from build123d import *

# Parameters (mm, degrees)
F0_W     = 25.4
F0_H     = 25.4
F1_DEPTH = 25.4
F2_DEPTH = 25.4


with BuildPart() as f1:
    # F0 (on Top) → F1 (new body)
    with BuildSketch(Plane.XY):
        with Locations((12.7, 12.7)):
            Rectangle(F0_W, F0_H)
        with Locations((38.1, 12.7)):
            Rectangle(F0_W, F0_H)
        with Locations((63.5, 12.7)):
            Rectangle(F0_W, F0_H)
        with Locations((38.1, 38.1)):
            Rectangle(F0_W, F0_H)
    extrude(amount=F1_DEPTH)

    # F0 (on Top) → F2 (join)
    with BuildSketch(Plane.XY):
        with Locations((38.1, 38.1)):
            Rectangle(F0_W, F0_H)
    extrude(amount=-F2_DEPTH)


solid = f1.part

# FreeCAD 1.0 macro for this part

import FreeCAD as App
import Part
import Sketcher
Q = App.Units.Quantity


def add_polygon(sketch, points):
    """Adds a closed chain of lines whose ends are joined by coincident constraints."""
    first, n = sketch.GeometryCount, len(points)
    for a, b in zip(points, points[1:] + points[:1]):
        sketch.addGeometry(Part.LineSegment(App.Vector(*a, 0), App.Vector(*b, 0)), False)
    for i in range(n):
        sketch.addConstraint(Sketcher.Constraint("Coincident", first + i, 2, first + (i + 1) % n, 1))

doc = App.newDocument("Part")
body = doc.addObject("PartDesign::Body", "Body")

# Sketch on XY plane
sketch1 = body.newObject("Sketcher::SketchObject", "Sketch")
sketch1.AttachmentSupport = (doc.getObject("XY_Plane"), [""])
sketch1.MapMode = "FlatFace"
add_polygon(sketch1, [(0, 25), (0, 0), (76, 0), (76, 25), (51, 25), (51, 51), (25, 51), (25, 25)])  # lines 0-7
sketch1.addConstraint(Sketcher.Constraint("Vertical", 0))
sketch1.addConstraint(Sketcher.Constraint("Horizontal", 1))
sketch1.addConstraint(Sketcher.Constraint("Vertical", 2))
sketch1.addConstraint(Sketcher.Constraint("Horizontal", 3))
sketch1.addConstraint(Sketcher.Constraint("Vertical", 4))
sketch1.addConstraint(Sketcher.Constraint("Horizontal", 5))
sketch1.addConstraint(Sketcher.Constraint("Vertical", 6))
sketch1.addConstraint(Sketcher.Constraint("Horizontal", 7))
sketch1.addConstraint(Sketcher.Constraint("Coincident", 0, 2, -1, 1))
sketch1.addConstraint(Sketcher.Constraint("Horizontal", 3, 2, 6, 2))
sketch1.addConstraint(Sketcher.Constraint("Equal", 3, 5))
sketch1.addConstraint(Sketcher.Constraint("Equal", 5, 7))
sketch1.addConstraint(Sketcher.Constraint("Equal", 7, 0))
sketch1.addConstraint(Sketcher.Constraint("Equal", 2, 4))
sketch1.addConstraint(Sketcher.Constraint("DistanceX", 1, 1, 1, 2, Q("3 in")))
pad1 = body.newObject("PartDesign::Pad", "Pad")
pad1.Profile = sketch1
pad1.Length = Q("1 in")

# Sketch on XY plane
sketch2 = body.newObject("Sketcher::SketchObject", "Sketch001")
sketch2.AttachmentSupport = (doc.getObject("XY_Plane"), [""])
sketch2.MapMode = "FlatFace"
add_polygon(sketch2, [(25, 51), (25, 25), (51, 25), (51, 51)])  # lines 0-3
sketch2.addConstraint(Sketcher.Constraint("Vertical", 0))
sketch2.addConstraint(Sketcher.Constraint("Horizontal", 1))
sketch2.addConstraint(Sketcher.Constraint("Vertical", 2))
sketch2.addConstraint(Sketcher.Constraint("Horizontal", 3))
sketch2.addConstraint(Sketcher.Constraint("Equal", 3, 0))
sketch2.addConstraint(Sketcher.Constraint("DistanceX", 1, 1, 1, 2, Q("1 in")))
sketch2.addConstraint(Sketcher.Constraint("DistanceX", -1, 1, 0, 2, Q("1 in")))
sketch2.addConstraint(Sketcher.Constraint("DistanceY", -1, 1, 0, 2, Q("1 in")))
pad2 = body.newObject("PartDesign::Pad", "Pad001")
pad2.Profile = sketch2
pad2.Length = Q("1 in")
pad2.Reversed = True

doc.recompute()
